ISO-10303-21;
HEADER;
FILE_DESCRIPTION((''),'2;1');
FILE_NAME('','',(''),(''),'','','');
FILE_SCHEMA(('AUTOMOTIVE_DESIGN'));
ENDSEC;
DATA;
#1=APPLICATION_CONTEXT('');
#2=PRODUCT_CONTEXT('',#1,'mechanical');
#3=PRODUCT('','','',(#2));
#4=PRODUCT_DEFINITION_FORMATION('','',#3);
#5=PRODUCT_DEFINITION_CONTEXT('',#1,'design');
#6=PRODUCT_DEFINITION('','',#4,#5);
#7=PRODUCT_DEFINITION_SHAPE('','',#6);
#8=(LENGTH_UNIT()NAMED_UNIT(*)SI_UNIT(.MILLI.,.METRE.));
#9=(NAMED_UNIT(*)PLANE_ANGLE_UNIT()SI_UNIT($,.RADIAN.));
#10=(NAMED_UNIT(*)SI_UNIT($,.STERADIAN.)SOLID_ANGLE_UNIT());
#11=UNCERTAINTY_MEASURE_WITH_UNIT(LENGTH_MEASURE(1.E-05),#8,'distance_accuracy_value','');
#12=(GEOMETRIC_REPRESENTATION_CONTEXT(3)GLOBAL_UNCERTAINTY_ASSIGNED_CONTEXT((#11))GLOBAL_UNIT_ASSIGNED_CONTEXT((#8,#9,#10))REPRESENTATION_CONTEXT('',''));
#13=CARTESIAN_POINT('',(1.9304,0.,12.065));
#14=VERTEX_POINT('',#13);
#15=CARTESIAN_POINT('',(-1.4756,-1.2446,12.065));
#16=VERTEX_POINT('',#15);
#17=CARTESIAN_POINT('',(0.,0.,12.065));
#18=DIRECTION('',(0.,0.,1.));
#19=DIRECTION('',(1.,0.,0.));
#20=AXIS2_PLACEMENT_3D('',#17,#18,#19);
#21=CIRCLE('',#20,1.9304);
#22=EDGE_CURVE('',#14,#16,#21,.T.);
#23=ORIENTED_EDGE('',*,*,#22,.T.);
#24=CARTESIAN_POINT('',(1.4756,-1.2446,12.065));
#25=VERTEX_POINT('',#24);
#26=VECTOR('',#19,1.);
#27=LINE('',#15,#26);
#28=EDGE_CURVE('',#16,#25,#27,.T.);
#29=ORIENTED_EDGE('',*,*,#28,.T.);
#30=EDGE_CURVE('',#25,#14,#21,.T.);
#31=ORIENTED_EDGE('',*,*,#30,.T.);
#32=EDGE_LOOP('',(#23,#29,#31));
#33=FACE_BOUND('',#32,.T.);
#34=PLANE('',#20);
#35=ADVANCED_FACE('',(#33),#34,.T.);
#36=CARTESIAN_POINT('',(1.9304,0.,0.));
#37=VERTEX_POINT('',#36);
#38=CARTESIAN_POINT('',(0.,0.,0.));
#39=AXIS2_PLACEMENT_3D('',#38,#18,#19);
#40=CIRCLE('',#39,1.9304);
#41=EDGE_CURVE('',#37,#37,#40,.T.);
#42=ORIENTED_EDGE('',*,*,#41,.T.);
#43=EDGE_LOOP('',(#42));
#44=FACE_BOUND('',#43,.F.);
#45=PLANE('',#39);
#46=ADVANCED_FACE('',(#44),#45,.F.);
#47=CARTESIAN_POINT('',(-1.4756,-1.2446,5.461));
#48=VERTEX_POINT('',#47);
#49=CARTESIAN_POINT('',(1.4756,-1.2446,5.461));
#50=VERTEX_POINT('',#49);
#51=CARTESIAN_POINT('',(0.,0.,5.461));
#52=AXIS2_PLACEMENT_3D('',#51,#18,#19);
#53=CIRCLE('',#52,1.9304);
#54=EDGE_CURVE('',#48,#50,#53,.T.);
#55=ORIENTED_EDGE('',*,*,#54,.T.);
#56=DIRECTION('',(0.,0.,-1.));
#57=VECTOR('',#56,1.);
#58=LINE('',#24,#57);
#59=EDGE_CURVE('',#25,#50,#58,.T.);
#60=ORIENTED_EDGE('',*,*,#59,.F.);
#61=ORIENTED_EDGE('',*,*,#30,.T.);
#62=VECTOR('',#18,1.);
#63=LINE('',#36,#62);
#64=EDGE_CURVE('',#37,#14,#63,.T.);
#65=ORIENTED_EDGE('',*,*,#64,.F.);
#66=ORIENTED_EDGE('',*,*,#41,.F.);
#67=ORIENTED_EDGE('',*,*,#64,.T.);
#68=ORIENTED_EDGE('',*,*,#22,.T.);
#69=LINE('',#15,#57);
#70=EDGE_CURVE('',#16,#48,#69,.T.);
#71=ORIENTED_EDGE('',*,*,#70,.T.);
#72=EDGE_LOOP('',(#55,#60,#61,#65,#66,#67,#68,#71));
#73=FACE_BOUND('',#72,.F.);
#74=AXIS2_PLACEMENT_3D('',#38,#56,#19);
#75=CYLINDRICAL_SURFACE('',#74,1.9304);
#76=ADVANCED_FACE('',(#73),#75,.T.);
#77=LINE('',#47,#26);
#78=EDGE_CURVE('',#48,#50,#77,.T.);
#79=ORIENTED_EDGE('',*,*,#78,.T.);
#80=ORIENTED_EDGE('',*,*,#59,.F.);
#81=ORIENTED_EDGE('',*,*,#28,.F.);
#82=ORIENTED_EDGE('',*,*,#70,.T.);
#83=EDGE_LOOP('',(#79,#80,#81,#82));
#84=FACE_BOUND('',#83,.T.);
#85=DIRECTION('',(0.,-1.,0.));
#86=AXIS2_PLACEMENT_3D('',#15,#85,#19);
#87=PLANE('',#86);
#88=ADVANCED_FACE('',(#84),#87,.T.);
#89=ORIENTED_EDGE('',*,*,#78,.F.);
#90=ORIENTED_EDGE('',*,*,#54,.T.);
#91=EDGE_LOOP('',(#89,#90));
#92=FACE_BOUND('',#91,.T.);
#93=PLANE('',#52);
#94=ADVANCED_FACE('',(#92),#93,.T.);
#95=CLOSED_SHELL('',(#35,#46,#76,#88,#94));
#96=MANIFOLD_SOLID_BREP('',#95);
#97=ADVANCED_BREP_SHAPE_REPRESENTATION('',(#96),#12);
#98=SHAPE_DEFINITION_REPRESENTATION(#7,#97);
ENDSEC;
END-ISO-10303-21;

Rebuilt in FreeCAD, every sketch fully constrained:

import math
import FreeCAD as App
import Part
import Sketcher

V = App.Vector
Q = App.Units.Quantity

doc = App.newDocument("Part")
params = doc.addObject("Spreadsheet::Sheet", "Params")
for row, (alias, value) in enumerate([
    ("sketch1_diameter", "0.152 in"),
    ("pad1_length", "0.475 in"),
    ("sketch2_radius", "0.076 in"),
    ("pocket1_length", "0.26 in"),
], start=1):
    params.set(f"A{row}", alias)
    params.set(f"B{row}", "=" + value)
    params.setAlias(f"B{row}", alias)

body = doc.addObject("PartDesign::Body", "Body")

# Sketch on XY plane
sketch1 = body.newObject("Sketcher::SketchObject", "Sketch")
sketch1.AttachmentSupport = (doc.getObject("XY_Plane"), [""])
sketch1.MapMode = "FlatFace"
sketch1.addGeometry(Part.Circle(V(0, 0, 0), V(0, 0, 1), 1.9304), False)
sketch1.addConstraint([
    Sketcher.Constraint("Coincident", 0, 3, -1, 1),
    Sketcher.Constraint("Diameter", 0, Q("0.152 in")),
])
sketch1.setExpression("Constraints[1]", "Params.sketch1_diameter")
pad1 = body.newObject("PartDesign::Pad", "Pad")
pad1.Profile = sketch1
pad1.setExpression("Length", "Params.pad1_length")

# Sketch on XY plane
sketch2 = body.newObject("Sketcher::SketchObject", "Sketch001")
sketch2.AttachmentSupport = (doc.getObject("XY_Plane"), [""])
sketch2.MapMode = "FlatFace"
sketch2.AttachmentOffset = App.Placement(V(0, 0, 0.475 * 25.4), App.Rotation())
sketch2.addGeometry([
    Part.LineSegment(V(1.4756, -1.2446, 0), V(-1.4756, -1.2446, 0)),
    Part.ArcOfCircle(Part.Circle(V(0, 0, 0), V(0, 0, 1), 1.9304), math.radians(-139.853925), math.radians(-40.146075)),
], False)
sketch2.addConstraint([
    Sketcher.Constraint("Coincident", 0, 1, 1, 2),
    Sketcher.Constraint("Coincident", 1, 1, 0, 2),
    Sketcher.Constraint("Horizontal", 0),
    Sketcher.Constraint("Coincident", 1, 3, -1, 1),
    Sketcher.Constraint("Radius", 1, Q("0.076 in")),
    Sketcher.Constraint("DistanceX", 0, 2, 0, 1, Q("0.1162 in")),
])
sketch2.setExpression("Constraints[4]", "Params.sketch2_radius")
pocket1 = body.newObject("PartDesign::Pocket", "Pocket")
pocket1.Profile = sketch2
pocket1.setExpression("Length", "Params.pocket1_length")

doc.recompute()
